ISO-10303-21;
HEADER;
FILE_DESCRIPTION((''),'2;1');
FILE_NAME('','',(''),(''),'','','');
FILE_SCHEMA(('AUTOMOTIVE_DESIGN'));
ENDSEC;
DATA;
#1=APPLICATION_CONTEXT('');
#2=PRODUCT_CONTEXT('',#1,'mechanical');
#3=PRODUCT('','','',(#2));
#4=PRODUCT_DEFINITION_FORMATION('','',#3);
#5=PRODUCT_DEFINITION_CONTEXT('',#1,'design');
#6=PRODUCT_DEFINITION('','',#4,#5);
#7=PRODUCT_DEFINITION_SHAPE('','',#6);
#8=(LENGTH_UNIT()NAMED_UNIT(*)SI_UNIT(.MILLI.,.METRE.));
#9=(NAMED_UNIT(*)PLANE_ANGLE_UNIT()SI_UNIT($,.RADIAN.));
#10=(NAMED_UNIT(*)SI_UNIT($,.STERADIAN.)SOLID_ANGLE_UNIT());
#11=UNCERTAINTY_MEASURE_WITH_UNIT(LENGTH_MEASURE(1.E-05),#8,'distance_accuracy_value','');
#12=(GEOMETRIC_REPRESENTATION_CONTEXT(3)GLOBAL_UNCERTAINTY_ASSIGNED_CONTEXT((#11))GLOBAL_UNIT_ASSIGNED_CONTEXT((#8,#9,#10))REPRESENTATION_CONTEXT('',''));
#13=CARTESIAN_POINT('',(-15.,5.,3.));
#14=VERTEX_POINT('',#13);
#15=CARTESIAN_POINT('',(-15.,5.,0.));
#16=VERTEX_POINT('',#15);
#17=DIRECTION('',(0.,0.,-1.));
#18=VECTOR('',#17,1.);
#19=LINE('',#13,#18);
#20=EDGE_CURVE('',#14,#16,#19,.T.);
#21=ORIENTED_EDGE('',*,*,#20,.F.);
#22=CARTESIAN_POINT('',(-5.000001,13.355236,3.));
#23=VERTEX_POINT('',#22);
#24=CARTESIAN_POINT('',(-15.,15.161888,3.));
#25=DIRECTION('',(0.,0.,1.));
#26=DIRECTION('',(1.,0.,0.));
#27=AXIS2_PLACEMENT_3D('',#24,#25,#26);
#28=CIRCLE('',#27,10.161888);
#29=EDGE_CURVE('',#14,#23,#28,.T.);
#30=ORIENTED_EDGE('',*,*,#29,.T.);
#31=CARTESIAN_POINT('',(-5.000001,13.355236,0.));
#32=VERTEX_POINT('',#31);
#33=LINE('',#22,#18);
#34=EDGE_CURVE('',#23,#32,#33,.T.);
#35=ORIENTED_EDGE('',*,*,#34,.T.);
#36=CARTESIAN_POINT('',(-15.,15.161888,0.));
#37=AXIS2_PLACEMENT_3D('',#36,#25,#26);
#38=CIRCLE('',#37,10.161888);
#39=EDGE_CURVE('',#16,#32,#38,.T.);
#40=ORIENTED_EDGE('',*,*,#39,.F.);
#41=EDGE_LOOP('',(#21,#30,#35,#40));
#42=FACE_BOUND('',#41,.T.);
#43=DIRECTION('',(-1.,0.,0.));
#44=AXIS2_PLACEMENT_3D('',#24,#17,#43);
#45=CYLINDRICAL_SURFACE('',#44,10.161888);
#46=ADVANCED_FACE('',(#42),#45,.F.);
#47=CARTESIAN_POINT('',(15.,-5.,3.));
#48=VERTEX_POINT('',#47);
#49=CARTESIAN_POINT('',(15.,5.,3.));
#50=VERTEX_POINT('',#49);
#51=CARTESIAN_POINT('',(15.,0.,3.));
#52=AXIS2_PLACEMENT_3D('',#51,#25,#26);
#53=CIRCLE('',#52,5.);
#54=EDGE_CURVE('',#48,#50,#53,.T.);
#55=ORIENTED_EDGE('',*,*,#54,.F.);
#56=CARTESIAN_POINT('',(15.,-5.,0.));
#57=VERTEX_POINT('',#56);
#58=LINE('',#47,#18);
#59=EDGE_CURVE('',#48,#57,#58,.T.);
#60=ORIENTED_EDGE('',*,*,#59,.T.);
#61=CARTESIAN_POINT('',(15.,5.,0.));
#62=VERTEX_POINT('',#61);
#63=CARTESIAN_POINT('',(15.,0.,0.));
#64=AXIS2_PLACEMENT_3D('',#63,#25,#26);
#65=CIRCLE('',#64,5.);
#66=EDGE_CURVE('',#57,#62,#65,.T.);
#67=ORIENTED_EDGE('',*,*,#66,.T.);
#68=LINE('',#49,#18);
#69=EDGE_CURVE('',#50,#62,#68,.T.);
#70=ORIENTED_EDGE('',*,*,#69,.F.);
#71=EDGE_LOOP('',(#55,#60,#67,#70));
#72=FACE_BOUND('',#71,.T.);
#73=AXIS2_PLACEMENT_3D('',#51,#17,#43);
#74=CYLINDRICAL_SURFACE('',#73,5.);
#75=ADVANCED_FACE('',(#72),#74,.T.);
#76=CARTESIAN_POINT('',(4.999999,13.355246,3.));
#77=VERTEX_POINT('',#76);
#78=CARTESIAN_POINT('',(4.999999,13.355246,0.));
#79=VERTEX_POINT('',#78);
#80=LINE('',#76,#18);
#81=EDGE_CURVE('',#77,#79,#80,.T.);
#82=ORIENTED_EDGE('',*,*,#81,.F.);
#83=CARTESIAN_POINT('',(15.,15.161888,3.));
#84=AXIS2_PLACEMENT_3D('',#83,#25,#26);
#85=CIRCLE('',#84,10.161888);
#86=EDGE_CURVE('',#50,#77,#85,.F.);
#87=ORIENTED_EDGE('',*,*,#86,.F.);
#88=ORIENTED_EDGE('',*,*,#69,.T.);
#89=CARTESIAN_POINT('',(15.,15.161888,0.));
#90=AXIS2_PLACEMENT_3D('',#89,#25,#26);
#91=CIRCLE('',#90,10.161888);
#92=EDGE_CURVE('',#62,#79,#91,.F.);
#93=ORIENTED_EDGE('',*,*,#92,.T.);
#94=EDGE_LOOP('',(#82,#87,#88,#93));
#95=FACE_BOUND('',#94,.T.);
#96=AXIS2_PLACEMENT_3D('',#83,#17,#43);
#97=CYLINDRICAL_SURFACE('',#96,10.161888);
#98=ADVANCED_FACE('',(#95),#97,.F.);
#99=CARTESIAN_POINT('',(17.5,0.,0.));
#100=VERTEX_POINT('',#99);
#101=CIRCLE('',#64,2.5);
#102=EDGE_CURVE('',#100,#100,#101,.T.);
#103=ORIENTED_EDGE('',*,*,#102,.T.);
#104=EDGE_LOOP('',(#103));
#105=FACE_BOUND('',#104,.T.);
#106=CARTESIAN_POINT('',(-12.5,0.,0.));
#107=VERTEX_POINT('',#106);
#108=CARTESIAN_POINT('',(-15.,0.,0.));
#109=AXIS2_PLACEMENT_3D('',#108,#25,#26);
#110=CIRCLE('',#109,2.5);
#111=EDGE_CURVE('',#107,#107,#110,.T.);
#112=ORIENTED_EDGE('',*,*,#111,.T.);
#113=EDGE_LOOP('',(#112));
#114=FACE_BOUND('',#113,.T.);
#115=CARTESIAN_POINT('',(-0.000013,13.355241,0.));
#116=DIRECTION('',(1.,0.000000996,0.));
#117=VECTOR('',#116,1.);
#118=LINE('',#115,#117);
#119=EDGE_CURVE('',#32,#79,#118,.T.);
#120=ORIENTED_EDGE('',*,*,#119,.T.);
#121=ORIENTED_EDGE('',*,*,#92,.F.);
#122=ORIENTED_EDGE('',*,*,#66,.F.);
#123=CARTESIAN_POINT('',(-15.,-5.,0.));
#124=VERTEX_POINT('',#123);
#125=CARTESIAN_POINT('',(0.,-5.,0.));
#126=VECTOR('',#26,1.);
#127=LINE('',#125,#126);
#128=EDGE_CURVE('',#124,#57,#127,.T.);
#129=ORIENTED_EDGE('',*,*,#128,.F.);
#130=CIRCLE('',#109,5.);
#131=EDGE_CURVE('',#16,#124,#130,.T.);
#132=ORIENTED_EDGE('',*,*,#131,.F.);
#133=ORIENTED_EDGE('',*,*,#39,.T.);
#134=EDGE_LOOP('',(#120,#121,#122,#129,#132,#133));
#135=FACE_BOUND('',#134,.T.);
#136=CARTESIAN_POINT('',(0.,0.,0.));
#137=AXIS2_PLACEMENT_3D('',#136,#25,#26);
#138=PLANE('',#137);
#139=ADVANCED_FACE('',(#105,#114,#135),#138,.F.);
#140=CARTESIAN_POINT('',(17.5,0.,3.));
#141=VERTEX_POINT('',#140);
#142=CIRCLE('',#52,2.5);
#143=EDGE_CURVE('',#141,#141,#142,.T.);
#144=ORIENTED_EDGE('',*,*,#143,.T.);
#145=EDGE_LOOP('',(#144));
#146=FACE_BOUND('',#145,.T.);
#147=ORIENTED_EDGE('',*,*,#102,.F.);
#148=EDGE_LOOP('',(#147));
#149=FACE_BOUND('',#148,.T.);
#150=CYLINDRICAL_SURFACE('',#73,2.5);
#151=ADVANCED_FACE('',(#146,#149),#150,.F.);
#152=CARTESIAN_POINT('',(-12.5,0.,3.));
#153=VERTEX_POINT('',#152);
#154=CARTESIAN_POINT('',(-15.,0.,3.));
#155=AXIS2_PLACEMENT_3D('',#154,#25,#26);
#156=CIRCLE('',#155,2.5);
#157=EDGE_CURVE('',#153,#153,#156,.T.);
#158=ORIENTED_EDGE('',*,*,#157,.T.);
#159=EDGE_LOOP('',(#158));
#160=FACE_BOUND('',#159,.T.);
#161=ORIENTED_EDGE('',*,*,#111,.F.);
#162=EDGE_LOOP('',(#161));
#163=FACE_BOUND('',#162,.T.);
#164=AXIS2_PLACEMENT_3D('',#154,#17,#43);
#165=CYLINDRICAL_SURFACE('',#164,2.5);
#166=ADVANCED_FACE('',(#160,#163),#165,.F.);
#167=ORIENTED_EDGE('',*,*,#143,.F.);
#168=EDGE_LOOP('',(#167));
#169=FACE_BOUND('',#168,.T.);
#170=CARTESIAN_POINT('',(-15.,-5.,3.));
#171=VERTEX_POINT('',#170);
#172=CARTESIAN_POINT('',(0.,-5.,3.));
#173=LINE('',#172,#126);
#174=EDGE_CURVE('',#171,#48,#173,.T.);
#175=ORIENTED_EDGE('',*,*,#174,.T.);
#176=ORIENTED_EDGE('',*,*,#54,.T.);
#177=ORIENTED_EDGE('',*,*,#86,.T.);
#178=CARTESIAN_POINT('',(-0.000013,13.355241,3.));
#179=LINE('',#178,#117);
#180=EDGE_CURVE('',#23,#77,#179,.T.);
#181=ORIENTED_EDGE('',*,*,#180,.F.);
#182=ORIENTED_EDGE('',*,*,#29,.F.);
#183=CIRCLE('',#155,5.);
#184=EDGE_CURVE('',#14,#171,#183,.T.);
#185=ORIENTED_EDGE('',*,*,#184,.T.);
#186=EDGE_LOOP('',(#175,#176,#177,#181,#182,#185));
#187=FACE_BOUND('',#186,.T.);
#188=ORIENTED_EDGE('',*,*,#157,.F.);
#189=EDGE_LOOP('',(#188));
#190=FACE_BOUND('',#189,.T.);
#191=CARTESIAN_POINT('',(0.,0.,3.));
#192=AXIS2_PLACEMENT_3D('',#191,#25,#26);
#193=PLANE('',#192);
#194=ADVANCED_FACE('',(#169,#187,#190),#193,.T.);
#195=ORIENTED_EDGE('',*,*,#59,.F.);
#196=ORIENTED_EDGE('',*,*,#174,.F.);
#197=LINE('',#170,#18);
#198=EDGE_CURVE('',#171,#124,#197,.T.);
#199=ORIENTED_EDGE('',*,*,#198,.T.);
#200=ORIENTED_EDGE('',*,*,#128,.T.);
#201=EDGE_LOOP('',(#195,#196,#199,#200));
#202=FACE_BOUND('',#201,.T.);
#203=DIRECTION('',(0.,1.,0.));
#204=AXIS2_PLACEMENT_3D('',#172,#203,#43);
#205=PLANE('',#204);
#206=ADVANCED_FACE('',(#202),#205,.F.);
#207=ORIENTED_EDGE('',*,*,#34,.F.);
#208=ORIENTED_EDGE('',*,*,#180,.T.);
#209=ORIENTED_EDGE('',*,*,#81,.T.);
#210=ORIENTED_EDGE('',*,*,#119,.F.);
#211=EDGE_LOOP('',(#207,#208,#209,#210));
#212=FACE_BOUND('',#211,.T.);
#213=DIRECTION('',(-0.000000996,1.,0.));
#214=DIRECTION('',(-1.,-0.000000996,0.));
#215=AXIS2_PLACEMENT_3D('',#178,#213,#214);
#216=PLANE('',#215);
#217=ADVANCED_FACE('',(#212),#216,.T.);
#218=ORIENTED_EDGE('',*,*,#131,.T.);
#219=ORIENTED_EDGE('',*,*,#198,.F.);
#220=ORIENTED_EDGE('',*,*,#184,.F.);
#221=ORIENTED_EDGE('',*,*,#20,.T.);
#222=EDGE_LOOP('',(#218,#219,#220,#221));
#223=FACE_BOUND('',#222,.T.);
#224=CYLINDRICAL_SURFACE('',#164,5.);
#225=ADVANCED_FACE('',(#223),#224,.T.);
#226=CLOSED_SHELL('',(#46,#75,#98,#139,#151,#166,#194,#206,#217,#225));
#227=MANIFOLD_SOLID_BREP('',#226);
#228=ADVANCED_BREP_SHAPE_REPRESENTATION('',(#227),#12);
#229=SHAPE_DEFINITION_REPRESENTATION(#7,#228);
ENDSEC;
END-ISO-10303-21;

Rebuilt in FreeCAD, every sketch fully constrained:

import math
import FreeCAD as App
import Part
import Sketcher
Q = App.Units.Quantity

doc = App.newDocument("Part")
params = doc.addObject("Spreadsheet::Sheet", "Params")
for row, (alias, value) in enumerate([
    ("sketch1_diameter", "5 mm"),
    ("sketch1_radius", "5 mm"),
    ("sketch1_width", "30 mm"),
    ("sketch1_length", "10 mm"),
    ("pad1_length", "3 mm"),
], start=1):
    params.set(f"A{row}", alias)
    params.set(f"B{row}", "=" + value)
    params.setAlias(f"B{row}", alias)

body = doc.addObject("PartDesign::Body", "Body")

sketch1 = body.newObject("Sketcher::SketchObject", "Sketch")
sketch1.AttachmentSupport = (doc.getObject("XY_Plane"), [""])
sketch1.MapMode = "FlatFace"
sketch1.addGeometry(Part.LineSegment(App.Vector(-15, -5, 0), App.Vector(15, -5, 0)), False)
sketch1.addGeometry(Part.ArcOfCircle(Part.Circle(App.Vector(15, 0, 0), App.Vector(0, 0, 1), 5), math.radians(-90), math.radians(90)), False)
sketch1.addGeometry(Part.ArcOfCircle(Part.Circle(App.Vector(15, 15.161888, 0), App.Vector(0, 0, 1), 10.161888), math.radians(-169.759165), math.radians(-90)), False)
sketch1.addGeometry(Part.LineSegment(App.Vector(4.999999, 13.355246, 0), App.Vector(-5.000001, 13.355236, 0)), False)
sketch1.addGeometry(Part.ArcOfCircle(Part.Circle(App.Vector(-15, 15.161888, 0), App.Vector(0, 0, 1), 10.161888), math.radians(-90), math.radians(-10.240892)), False)
sketch1.addGeometry(Part.ArcOfCircle(Part.Circle(App.Vector(-15, 0, 0), App.Vector(0, 0, 1), 5), math.radians(90), math.radians(270)), False)
sketch1.addGeometry(Part.Circle(App.Vector(-15, 0, 0), App.Vector(0, 0, 1), 2.5), False)
sketch1.addGeometry(Part.Circle(App.Vector(15, 0, 0), App.Vector(0, 0, 1), 2.5), False)
sketch1.addConstraint(Sketcher.Constraint("Tangent", 0, 2, 1, 1))
sketch1.addConstraint(Sketcher.Constraint("Tangent", 1, 2, 2, 2))
sketch1.addConstraint(Sketcher.Constraint("Coincident", 2, 1, 3, 1))
sketch1.addConstraint(Sketcher.Constraint("Coincident", 3, 2, 4, 2))
sketch1.addConstraint(Sketcher.Constraint("Tangent", 4, 1, 5, 1))
sketch1.addConstraint(Sketcher.Constraint("Tangent", 5, 2, 0, 1))
sketch1.addConstraint(Sketcher.Constraint("Horizontal", 0))
sketch1.addConstraint(Sketcher.Constraint("Coincident", 6, 3, 5, 3))
sketch1.addConstraint(Sketcher.Constraint("Coincident", 7, 3, 1, 3))
sketch1.addConstraint(Sketcher.Constraint("Equal", 2, 4))
sketch1.addConstraint(Sketcher.Constraint("Equal", 1, 5))
sketch1.addConstraint(Sketcher.Constraint("Equal", 6, 7))
sketch1.addConstraint(Sketcher.Constraint("Symmetric", 1, 3, 5, 3, -1, 1))
sketch1.addConstraint(Sketcher.Constraint("Vertical", 1, 3, 2, 3))
sketch1.addConstraint(Sketcher.Constraint("Vertical", 4, 3, 5, 3))
sketch1.addConstraint(Sketcher.Constraint("Diameter", 6, Q("5 mm")))
sketch1.addConstraint(Sketcher.Constraint("Radius", 1, Q("5 mm")))
sketch1.addConstraint(Sketcher.Constraint("DistanceX", 0, 1, 0, 2, Q("30 mm")))
sketch1.addConstraint(Sketcher.Constraint("Distance", 3, Q("10 mm")))
sketch1.addConstraint(Sketcher.Constraint("DistanceX", -1, 1, 2, 1, Q("4.999999 mm")))
sketch1.addConstraint(Sketcher.Constraint("Radius", 2, Q("10.161888 mm")))
sketch1.setExpression("Constraints[15]", "Params.sketch1_diameter")
sketch1.setExpression("Constraints[16]", "Params.sketch1_radius")
sketch1.setExpression("Constraints[17]", "Params.sketch1_width")
sketch1.setExpression("Constraints[18]", "Params.sketch1_length")
pad1 = body.newObject("PartDesign::Pad", "Pad")
pad1.Profile = sketch1
pad1.setExpression("Length", "Params.pad1_length")

doc.recompute()
